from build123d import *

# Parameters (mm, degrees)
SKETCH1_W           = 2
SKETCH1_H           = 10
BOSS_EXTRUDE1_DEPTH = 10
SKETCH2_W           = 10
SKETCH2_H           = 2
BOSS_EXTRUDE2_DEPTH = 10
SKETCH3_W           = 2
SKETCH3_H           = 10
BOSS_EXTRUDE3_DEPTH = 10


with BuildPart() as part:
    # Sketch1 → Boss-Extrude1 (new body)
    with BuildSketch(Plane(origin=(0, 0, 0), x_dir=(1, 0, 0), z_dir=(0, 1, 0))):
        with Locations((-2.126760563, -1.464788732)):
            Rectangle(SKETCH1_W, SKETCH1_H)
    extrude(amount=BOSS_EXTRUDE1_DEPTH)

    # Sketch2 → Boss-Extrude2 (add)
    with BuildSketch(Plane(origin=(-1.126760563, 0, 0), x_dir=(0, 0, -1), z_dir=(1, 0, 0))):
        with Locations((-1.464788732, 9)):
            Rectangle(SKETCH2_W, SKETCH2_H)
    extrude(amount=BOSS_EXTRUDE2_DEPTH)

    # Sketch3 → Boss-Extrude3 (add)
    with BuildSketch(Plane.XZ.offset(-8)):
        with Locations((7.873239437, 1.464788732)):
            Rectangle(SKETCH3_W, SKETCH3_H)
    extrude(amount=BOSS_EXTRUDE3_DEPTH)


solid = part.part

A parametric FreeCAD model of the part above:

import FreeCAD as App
import Part
import Sketcher
from FreeCAD import Vector
Q = App.Units.Quantity


def add_polygon(sketch, points):
    """Adds a closed chain of lines whose ends are joined by coincident constraints."""
    first, n = sketch.GeometryCount, len(points)
    for a, b in zip(points, points[1:] + points[:1]):
        sketch.addGeometry(Part.LineSegment(App.Vector(*a, 0), App.Vector(*b, 0)), False)
    for i in range(n):
        sketch.addConstraint(Sketcher.Constraint("Coincident", first + i, 2, first + (i + 1) % n, 1))

doc = App.newDocument("Part")
body = doc.addObject("PartDesign::Body", "Body")

# Sketch on XZ plane
sketch1 = body.newObject("Sketcher::SketchObject", "Sketch")
sketch1.AttachmentSupport = (doc.getObject("XZ_Plane"), [""])
sketch1.MapMode = "FlatFace"
add_polygon(sketch1, [(-3.1, -3.5), (-3.1, 6.5), (-1.1, 6.5), (-1.1, -3.5)])  # lines 0-3
sketch1.addConstraint(Sketcher.Constraint("Vertical", 0))
sketch1.addConstraint(Sketcher.Constraint("Horizontal", 1))
sketch1.addConstraint(Sketcher.Constraint("Vertical", 2))
sketch1.addConstraint(Sketcher.Constraint("Horizontal", 3))
sketch1.addConstraint(Sketcher.Constraint("DistanceX", 1, 1, 1, 2, Q("2 mm")))
sketch1.addConstraint(Sketcher.Constraint("DistanceY", 0, 1, 0, 2, Q("10 mm")))
sketch1.addConstraint(Sketcher.Constraint("DistanceX", 0, 2, -1, 1, Q("3.126761 mm")))
sketch1.addConstraint(Sketcher.Constraint("DistanceY", -1, 1, 0, 2, Q("6.464789 mm")))
pad1 = body.newObject("PartDesign::Pad", "Pad")
pad1.Profile = sketch1
pad1.Length = 10
pad1.Reversed = True

# Sketch on YZ plane
sketch2 = body.newObject("Sketcher::SketchObject", "Sketch001")
sketch2.AttachmentSupport = (doc.getObject("YZ_Plane"), [""])
sketch2.MapMode = "FlatFace"
sketch2.AttachmentOffset = App.Placement(Vector(0, 0, -1.126761), App.Rotation())
add_polygon(sketch2, [(10, 6.5), (8, 6.5), (8, -3.5), (10, -3.5)])  # lines 0-3
sketch2.addConstraint(Sketcher.Constraint("Horizontal", 0))
sketch2.addConstraint(Sketcher.Constraint("Vertical", 1))
sketch2.addConstraint(Sketcher.Constraint("Horizontal", 2))
sketch2.addConstraint(Sketcher.Constraint("Vertical", 3))
sketch2.addConstraint(Sketcher.Constraint("DistanceX", 0, 2, 0, 1, Q("2 mm")))
sketch2.addConstraint(Sketcher.Constraint("DistanceY", 1, 2, 1, 1, Q("10 mm")))
sketch2.addConstraint(Sketcher.Constraint("DistanceX", -1, 1, 0, 2, Q("8 mm")))
sketch2.addConstraint(Sketcher.Constraint("DistanceY", -1, 1, 0, 2, Q("6.464789 mm")))
pad2 = body.newObject("PartDesign::Pad", "Pad001")
pad2.Profile = sketch2
pad2.Length = 10

# Sketch on XZ plane
sketch3 = body.newObject("Sketcher::SketchObject", "Sketch002")
sketch3.AttachmentSupport = (doc.getObject("XZ_Plane"), [""])
sketch3.MapMode = "FlatFace"
sketch3.AttachmentOffset = App.Placement(Vector(0, 0, -8), App.Rotation())
add_polygon(sketch3, [(6.9, 6.5), (6.9, -3.5), (8.9, -3.5), (8.9, 6.5)])  # lines 0-3
sketch3.addConstraint(Sketcher.Constraint("Vertical", 0))
sketch3.addConstraint(Sketcher.Constraint("Horizontal", 1))
sketch3.addConstraint(Sketcher.Constraint("Vertical", 2))
sketch3.addConstraint(Sketcher.Constraint("Horizontal", 3))
sketch3.addConstraint(Sketcher.Constraint("DistanceX", 1, 1, 1, 2, Q("2 mm")))
sketch3.addConstraint(Sketcher.Constraint("DistanceY", 0, 2, 0, 1, Q("10 mm")))
sketch3.addConstraint(Sketcher.Constraint("DistanceX", -1, 1, 0, 2, Q("6.873239 mm")))
sketch3.addConstraint(Sketcher.Constraint("DistanceY", 0, 2, -1, 1, Q("3.535211 mm")))
pad3 = body.newObject("PartDesign::Pad", "Pad002")
pad3.Profile = sketch3
pad3.Length = 10

doc.recompute()
